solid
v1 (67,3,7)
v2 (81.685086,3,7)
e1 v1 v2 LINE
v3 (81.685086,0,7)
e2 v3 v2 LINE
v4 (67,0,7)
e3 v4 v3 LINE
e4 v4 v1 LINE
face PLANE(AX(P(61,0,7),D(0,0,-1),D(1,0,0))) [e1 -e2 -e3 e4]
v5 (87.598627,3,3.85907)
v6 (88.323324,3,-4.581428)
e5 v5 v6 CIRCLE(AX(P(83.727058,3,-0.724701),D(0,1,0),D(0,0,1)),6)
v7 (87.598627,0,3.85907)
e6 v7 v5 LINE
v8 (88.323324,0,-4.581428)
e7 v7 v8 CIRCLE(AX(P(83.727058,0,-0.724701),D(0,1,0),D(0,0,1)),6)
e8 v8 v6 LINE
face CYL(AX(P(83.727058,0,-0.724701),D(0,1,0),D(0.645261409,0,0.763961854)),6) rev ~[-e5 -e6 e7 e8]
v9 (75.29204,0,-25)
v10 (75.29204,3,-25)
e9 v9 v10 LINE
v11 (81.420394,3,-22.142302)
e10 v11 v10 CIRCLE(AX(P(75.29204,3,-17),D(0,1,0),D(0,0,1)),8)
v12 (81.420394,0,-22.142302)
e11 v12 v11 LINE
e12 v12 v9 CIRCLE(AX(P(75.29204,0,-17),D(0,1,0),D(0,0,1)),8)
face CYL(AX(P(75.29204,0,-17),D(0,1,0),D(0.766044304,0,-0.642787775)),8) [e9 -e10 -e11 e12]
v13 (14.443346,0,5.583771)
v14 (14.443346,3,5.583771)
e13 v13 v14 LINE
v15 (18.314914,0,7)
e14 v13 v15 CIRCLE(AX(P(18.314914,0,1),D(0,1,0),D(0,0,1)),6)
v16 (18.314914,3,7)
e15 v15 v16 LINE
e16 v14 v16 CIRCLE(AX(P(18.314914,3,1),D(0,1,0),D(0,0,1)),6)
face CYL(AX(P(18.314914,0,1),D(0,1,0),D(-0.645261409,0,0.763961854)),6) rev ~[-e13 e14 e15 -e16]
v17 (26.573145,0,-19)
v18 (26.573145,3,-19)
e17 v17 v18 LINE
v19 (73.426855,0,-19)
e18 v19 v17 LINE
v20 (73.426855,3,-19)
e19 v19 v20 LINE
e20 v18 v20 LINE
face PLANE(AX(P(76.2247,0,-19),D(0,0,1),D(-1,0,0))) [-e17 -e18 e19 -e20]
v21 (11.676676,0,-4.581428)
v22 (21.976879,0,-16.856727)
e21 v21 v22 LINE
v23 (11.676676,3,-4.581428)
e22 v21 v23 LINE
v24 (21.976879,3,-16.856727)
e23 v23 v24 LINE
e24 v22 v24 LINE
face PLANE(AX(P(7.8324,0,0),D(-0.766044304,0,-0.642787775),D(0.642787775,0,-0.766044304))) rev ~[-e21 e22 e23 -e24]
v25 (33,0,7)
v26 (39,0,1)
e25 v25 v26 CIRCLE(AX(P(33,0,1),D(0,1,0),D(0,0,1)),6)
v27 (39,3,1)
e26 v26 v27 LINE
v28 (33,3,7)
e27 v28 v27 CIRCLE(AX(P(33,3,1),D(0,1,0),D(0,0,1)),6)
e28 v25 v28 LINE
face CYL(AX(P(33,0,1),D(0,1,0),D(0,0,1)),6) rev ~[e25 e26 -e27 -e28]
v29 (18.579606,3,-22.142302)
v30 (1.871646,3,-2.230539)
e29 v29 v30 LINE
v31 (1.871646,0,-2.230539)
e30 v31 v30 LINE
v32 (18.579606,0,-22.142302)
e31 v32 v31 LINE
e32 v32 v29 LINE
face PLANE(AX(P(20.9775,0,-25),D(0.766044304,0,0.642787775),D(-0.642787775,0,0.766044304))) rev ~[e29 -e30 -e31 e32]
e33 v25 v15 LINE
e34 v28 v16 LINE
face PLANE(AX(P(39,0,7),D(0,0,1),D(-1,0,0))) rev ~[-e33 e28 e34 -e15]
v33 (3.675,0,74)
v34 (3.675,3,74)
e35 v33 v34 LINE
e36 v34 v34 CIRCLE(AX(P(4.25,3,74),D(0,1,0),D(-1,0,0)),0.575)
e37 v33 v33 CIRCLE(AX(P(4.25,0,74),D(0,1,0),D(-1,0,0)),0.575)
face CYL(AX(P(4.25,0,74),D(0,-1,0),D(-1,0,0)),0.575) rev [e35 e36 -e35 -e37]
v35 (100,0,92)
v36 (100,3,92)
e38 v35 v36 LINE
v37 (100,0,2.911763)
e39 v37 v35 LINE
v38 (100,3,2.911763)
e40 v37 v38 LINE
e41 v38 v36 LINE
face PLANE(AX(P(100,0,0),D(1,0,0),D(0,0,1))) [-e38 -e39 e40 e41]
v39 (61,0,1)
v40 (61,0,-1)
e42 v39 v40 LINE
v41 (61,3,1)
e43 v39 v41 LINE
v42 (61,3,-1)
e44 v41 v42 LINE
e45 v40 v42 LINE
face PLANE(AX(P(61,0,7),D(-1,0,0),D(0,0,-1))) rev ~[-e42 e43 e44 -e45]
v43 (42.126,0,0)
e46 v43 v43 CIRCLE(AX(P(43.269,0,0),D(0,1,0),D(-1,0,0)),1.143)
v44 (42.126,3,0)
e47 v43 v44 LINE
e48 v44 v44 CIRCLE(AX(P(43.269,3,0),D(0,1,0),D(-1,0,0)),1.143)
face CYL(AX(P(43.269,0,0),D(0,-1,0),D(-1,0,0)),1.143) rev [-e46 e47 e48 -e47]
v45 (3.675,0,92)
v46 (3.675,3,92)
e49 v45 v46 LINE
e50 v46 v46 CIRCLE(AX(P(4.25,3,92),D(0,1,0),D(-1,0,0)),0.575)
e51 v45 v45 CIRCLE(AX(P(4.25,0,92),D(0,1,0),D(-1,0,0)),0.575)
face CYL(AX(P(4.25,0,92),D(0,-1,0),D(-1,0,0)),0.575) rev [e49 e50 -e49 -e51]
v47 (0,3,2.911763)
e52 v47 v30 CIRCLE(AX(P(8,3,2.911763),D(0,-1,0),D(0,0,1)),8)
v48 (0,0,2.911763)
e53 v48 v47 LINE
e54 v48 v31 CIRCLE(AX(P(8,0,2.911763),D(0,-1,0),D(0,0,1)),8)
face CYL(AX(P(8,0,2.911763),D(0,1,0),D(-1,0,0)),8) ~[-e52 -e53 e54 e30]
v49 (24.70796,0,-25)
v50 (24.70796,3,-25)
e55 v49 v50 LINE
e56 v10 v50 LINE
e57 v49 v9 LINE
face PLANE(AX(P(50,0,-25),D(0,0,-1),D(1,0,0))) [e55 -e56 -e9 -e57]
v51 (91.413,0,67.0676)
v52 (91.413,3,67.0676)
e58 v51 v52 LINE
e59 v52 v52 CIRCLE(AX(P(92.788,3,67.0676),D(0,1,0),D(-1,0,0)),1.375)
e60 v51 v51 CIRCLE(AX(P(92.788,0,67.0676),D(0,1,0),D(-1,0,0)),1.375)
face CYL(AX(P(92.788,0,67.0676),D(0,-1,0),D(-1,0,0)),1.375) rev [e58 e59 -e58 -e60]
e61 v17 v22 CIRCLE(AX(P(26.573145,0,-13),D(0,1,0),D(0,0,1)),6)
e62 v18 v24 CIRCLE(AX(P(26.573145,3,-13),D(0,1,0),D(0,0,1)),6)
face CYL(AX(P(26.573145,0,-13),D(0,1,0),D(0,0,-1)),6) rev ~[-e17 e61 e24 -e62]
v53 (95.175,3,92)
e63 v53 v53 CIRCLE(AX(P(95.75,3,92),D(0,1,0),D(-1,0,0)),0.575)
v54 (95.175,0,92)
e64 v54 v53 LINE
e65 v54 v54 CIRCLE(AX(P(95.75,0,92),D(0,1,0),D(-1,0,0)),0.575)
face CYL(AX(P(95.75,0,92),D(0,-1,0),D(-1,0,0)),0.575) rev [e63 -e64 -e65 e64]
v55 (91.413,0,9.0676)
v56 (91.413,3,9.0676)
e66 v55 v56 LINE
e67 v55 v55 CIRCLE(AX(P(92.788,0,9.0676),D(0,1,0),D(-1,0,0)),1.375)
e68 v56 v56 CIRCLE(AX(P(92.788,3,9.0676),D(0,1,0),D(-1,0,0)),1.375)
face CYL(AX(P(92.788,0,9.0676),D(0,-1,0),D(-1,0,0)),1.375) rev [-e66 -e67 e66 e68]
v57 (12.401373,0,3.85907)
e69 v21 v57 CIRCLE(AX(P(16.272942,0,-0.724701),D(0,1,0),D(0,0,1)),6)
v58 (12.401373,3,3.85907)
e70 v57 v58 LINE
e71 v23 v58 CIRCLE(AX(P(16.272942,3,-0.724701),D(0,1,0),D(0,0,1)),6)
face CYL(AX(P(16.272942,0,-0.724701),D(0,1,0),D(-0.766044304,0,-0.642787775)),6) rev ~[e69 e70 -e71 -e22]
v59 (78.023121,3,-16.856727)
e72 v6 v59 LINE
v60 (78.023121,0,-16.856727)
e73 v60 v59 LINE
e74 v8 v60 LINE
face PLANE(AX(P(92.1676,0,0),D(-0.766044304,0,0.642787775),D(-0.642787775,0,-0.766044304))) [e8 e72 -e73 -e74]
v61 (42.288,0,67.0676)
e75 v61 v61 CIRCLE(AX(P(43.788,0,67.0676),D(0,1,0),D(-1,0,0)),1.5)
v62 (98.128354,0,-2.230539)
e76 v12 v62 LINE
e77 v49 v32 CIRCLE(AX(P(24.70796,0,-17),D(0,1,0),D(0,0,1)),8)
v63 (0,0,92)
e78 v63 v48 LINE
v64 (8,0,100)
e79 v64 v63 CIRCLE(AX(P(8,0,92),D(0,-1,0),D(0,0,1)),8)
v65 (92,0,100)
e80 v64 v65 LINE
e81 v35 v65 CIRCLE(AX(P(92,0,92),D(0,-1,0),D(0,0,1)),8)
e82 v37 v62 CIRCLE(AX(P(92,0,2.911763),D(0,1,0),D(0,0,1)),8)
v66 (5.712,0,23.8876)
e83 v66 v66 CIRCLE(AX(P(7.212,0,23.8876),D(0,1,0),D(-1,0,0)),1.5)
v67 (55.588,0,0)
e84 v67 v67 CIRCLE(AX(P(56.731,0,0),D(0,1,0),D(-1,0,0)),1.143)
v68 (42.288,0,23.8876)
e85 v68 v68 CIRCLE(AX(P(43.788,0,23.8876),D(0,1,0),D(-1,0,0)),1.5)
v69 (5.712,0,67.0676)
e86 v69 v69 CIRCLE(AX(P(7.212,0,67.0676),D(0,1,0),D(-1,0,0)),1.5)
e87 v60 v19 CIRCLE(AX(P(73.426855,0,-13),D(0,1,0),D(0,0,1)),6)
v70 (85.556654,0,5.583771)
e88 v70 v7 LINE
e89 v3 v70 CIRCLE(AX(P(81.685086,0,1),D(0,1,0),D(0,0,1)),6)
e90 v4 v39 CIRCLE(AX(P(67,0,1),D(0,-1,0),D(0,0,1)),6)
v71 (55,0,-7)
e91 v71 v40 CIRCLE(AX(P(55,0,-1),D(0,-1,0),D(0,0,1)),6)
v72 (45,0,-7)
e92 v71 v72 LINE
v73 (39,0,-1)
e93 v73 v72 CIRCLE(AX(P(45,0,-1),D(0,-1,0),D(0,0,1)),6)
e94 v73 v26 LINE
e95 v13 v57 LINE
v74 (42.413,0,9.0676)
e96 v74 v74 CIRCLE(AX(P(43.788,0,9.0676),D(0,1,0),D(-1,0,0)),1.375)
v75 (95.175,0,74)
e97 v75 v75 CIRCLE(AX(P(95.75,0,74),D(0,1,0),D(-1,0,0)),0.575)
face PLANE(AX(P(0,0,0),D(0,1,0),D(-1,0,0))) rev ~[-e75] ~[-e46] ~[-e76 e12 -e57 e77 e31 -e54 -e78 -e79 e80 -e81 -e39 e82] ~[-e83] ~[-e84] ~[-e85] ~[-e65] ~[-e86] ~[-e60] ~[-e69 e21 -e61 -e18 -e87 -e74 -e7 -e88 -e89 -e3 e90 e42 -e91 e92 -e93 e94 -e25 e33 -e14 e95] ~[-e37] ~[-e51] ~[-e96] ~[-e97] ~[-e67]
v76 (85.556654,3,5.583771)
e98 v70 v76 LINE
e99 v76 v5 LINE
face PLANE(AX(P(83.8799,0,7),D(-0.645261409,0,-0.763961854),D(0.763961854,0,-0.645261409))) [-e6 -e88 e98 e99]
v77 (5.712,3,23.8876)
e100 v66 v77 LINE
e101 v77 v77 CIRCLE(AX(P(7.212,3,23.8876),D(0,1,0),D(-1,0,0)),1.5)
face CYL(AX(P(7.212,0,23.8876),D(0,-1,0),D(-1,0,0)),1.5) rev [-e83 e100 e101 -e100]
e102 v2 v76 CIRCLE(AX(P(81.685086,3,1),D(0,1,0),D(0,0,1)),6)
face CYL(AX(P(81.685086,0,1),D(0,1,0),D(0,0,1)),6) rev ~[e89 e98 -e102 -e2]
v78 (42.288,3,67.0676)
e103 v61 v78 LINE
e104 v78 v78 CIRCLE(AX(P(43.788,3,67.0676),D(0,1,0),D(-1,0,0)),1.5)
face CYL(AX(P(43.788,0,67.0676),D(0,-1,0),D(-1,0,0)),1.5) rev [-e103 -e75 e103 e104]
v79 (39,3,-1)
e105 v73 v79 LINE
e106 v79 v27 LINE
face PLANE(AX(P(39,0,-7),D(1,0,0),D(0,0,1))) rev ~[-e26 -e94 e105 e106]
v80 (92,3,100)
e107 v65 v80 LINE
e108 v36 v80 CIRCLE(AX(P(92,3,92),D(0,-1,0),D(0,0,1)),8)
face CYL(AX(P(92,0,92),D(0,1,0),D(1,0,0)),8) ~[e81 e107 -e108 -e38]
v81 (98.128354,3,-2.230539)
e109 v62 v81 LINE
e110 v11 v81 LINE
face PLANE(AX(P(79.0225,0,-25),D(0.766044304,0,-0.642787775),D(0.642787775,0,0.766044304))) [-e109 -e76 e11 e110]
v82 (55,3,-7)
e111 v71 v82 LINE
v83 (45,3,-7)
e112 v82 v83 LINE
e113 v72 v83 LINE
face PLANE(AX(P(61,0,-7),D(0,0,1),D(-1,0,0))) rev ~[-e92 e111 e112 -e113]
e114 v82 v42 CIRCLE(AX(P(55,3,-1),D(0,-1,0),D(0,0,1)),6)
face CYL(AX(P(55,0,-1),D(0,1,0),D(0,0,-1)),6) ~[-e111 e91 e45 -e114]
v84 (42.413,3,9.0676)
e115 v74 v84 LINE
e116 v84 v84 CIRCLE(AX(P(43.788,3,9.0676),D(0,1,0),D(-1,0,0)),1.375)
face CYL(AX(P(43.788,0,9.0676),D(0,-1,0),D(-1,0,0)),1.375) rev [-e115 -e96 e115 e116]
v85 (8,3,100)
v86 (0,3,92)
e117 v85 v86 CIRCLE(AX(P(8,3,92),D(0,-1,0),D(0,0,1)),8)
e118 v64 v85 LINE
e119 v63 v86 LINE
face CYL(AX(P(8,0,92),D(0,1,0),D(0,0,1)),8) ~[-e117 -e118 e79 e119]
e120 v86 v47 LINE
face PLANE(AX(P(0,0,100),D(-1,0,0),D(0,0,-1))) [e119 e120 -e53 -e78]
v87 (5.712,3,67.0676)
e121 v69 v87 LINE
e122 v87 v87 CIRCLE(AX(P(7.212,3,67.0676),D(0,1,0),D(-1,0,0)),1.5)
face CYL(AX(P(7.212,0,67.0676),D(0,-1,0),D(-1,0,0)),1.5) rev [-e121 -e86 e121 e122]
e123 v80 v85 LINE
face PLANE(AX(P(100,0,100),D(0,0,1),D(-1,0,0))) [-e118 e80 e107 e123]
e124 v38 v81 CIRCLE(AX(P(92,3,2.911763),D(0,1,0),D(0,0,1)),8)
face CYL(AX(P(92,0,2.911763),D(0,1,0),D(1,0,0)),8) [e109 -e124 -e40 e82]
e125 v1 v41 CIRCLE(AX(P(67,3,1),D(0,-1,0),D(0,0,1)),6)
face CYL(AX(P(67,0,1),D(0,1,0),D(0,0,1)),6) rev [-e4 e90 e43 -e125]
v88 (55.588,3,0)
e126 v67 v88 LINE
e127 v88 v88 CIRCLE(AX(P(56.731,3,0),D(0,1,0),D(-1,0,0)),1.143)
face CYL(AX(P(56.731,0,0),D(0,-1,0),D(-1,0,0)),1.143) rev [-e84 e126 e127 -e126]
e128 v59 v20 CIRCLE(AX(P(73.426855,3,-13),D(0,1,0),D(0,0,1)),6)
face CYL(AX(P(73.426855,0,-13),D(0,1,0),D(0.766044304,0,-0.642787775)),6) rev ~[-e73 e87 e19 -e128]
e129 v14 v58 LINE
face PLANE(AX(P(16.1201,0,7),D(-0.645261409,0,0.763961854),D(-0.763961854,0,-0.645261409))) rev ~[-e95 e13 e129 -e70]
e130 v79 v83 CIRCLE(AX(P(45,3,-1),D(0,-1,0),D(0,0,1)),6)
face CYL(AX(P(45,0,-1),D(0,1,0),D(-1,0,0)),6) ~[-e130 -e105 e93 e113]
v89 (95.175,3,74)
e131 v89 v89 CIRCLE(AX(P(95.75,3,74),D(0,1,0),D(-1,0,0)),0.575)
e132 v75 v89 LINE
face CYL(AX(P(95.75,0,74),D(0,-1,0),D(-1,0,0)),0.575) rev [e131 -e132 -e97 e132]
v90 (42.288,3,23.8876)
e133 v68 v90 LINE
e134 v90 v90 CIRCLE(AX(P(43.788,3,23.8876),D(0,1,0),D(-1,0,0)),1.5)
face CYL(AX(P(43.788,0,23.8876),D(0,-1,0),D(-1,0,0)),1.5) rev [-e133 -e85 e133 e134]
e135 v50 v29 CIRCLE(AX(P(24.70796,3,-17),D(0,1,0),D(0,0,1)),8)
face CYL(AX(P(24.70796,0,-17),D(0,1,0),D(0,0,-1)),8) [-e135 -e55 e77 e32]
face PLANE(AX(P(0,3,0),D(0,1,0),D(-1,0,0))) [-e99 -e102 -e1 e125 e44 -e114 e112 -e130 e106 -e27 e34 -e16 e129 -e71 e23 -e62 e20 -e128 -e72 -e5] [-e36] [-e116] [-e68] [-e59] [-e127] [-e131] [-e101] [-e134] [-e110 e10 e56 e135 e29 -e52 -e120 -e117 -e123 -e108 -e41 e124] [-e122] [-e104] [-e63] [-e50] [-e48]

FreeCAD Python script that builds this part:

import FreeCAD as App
import Part
import Sketcher

V = App.Vector
Q = App.Units.Quantity


def edges_at(feature, points):
    """Names of the edges that pass closest to the given points."""
    edges = feature.Shape.Edges
    near = lambda p: min(range(len(edges)), key=lambda i: edges[i].distToShape(Part.Vertex(*p))[0])
    return sorted({f"Edge{near(p) + 1}" for p in points})

doc = App.newDocument("Part")
params = doc.addObject("Spreadsheet::Sheet", "Params")
for row, (alias, value) in enumerate([
    ("sketch1_diameter", "3 mm"),
    ("sketch1_diameter2", "2.75 mm"),
    ("sketch1_diameter3", "1.15 mm"),
    ("sketch1_width", "100 mm"),
    ("sketch1_width2", "22 mm"),
    ("pad1_length", "3 mm"),
    ("fillet_radius", "6 mm"),
    ("fillet2_radius", "8 mm"),
], start=1):
    params.set(f"A{row}", alias)
    params.set(f"B{row}", "=" + value)
    params.setAlias(f"B{row}", alias)

body = doc.addObject("PartDesign::Body", "Body")

sketch1 = body.newObject("Sketcher::SketchObject", "Sketch")
sketch1.AttachmentSupport = (doc.getObject("XZ_Plane"), [""])
sketch1.MapMode = "FlatFace"
sketch1.addGeometry([
    Part.LineSegment(V(100, 100, 0), V(100, 0, 0)),
    Part.LineSegment(V(100, 0, 0), V(79.0225, -25, 0)),
    Part.LineSegment(V(79.0225, -25, 0), V(20.9775, -25, 0)),
    Part.LineSegment(V(20.9775, -25, 0), V(0, 0, 0)),
    Part.LineSegment(V(0, 0, 0), V(0, 100, 0)),
    Part.LineSegment(V(0, 100, 0), V(100, 100, 0)),
    Part.Circle(V(92.788, 9.0676, 0), V(0, 0, 1), 1.375),
    Part.LineSegment(V(83.8799, 7, 0), V(61, 7, 0)),
    Part.LineSegment(V(61, 7, 0), V(61, -7, 0)),
    Part.LineSegment(V(61, -7, 0), V(39, -7, 0)),
    Part.LineSegment(V(39, -7, 0), V(39, 7, 0)),
    Part.LineSegment(V(39, 7, 0), V(16.1201, 7, 0)),
    Part.LineSegment(V(16.1201, 7, 0), V(7.8324, 0, 0)),
    Part.LineSegment(V(7.8324, 0, 0), V(23.7753, -19, 0)),
    Part.LineSegment(V(23.7753, -19, 0), V(76.2247, -19, 0)),
    Part.LineSegment(V(76.2247, -19, 0), V(92.1676, 0, 0)),
    Part.LineSegment(V(92.1676, 0, 0), V(83.8799, 7, 0)),
    Part.Circle(V(43.788, 9.0676, 0), V(0, 0, 1), 1.375),
    Part.Circle(V(43.788, 23.8876, 0), V(0, 0, 1), 1.5),
    Part.Circle(V(7.212, 23.8876, 0), V(0, 0, 1), 1.5),
    Part.Circle(V(92.788, 67.0676, 0), V(0, 0, 1), 1.375),
    Part.Circle(V(95.75, 74, 0), V(0, 0, 1), 0.575),
    Part.Circle(V(95.75, 92, 0), V(0, 0, 1), 0.575),
    Part.Circle(V(43.788, 67.0676, 0), V(0, 0, 1), 1.5),
    Part.Circle(V(7.212, 67.0676, 0), V(0, 0, 1), 1.5),
    Part.Circle(V(4.25, 74, 0), V(0, 0, 1), 0.575),
    Part.Circle(V(4.25, 92, 0), V(0, 0, 1), 0.575),
    Part.Circle(V(43.269, 0, 0), V(0, 0, 1), 1.143),
    Part.Circle(V(56.731, 0, 0), V(0, 0, 1), 1.143),
], False)
sketch1.addConstraint([
    Sketcher.Constraint("Coincident", 0, 2, 1, 1),
    Sketcher.Constraint("Coincident", 1, 2, 2, 1),
    Sketcher.Constraint("Coincident", 2, 2, 3, 1),
    Sketcher.Constraint("Coincident", 3, 2, 4, 1),
    Sketcher.Constraint("Coincident", 4, 2, 5, 1),
    Sketcher.Constraint("Coincident", 5, 2, 0, 1),
    Sketcher.Constraint("Coincident", 7, 2, 8, 1),
    Sketcher.Constraint("Coincident", 8, 2, 9, 1),
    Sketcher.Constraint("Coincident", 9, 2, 10, 1),
    Sketcher.Constraint("Coincident", 10, 2, 11, 1),
    Sketcher.Constraint("Coincident", 11, 2, 12, 1),
    Sketcher.Constraint("Coincident", 12, 2, 13, 1),
    Sketcher.Constraint("Coincident", 13, 2, 14, 1),
    Sketcher.Constraint("Coincident", 14, 2, 15, 1),
    Sketcher.Constraint("Coincident", 15, 2, 16, 1),
    Sketcher.Constraint("Coincident", 16, 2, 7, 1),
    Sketcher.Constraint("Vertical", 0),
    Sketcher.Constraint("Horizontal", 2),
    Sketcher.Constraint("Vertical", 4),
    Sketcher.Constraint("Horizontal", 5),
    Sketcher.Constraint("Horizontal", 7),
    Sketcher.Constraint("Vertical", 8),
    Sketcher.Constraint("Horizontal", 9),
    Sketcher.Constraint("Vertical", 10),
    Sketcher.Constraint("Horizontal", 11),
    Sketcher.Constraint("Horizontal", 14),
    Sketcher.Constraint("Coincident", 3, 2, -1, 1),
    Sketcher.Constraint("Equal", 6, 17),
    Sketcher.Constraint("Equal", 18, 19),
    Sketcher.Constraint("Equal", 17, 20),
    Sketcher.Constraint("Equal", 21, 22),
    Sketcher.Constraint("Equal", 19, 23),
    Sketcher.Constraint("Equal", 23, 24),
    Sketcher.Constraint("Equal", 22, 25),
    Sketcher.Constraint("Equal", 25, 26),
    Sketcher.Constraint("Equal", 27, 28),
    Sketcher.Constraint("PointOnObject", 27, 3, -1),
    Sketcher.Constraint("PointOnObject", 28, 3, -1),
    Sketcher.Constraint("PointOnObject", 0, 2, -1),
    Sketcher.Constraint("PointOnObject", 12, 2, -1),
    Sketcher.Constraint("PointOnObject", 15, 2, -1),
    Sketcher.Constraint("Parallel", 3, 13),
    Sketcher.Constraint("Parallel", 1, 15),
    Sketcher.Constraint("Horizontal", 6, 3, 17, 3),
    Sketcher.Constraint("Horizontal", 18, 3, 19, 3),
    Sketcher.Constraint("Horizontal", 20, 3, 23, 3),
    Sketcher.Constraint("Horizontal", 23, 3, 24, 3),
    Sketcher.Constraint("Horizontal", 21, 3, 25, 3),
    Sketcher.Constraint("Horizontal", 22, 3, 26, 3),
    Sketcher.Constraint("Horizontal", 7, 2, 10, 2),
    Sketcher.Constraint("Vertical", 17, 3, 18, 3),
    Sketcher.Constraint("Vertical", 6, 3, 20, 3),
    Sketcher.Constraint("Vertical", 21, 3, 22, 3),
    Sketcher.Constraint("Vertical", 18, 3, 23, 3),
    Sketcher.Constraint("Vertical", 19, 3, 24, 3),
    Sketcher.Constraint("Vertical", 25, 3, 26, 3),
    Sketcher.Constraint("Equal", 7, 11),
    Sketcher.Constraint("Equal", 5, 0),
    Sketcher.Constraint("Equal", 1, 3),
    Sketcher.Constraint("Equal", 12, 16),
    Sketcher.Constraint("Diameter", 18, Q("3 mm")),
    Sketcher.Constraint("Diameter", 6, Q("2.75 mm")),
    Sketcher.Constraint("Diameter", 21, Q("1.15 mm")),
    Sketcher.Constraint("DistanceX", 5, 1, 5, 2, Q("100 mm")),
    Sketcher.Constraint("DistanceX", 9, 2, 9, 1, Q("22 mm")),
    Sketcher.Constraint("DistanceY", 8, 2, 8, 1, Q("14 mm")),
    Sketcher.Constraint("Angle", 1, Q("-130 deg")),
    Sketcher.Constraint("Diameter", 27, Q("2.286 mm")),
    Sketcher.Constraint("DistanceY", 1, 2, -1, 1, Q("25 mm")),
    Sketcher.Constraint("DistanceX", 17, 3, 6, 3, Q("49 mm")),
    Sketcher.Constraint("DistanceY", 6, 3, 20, 3, Q("58 mm")),
    Sketcher.Constraint("DistanceY", 21, 3, 22, 3, Q("18 mm")),
    Sketcher.Constraint("DistanceY", 26, 3, 4, 2, Q("8 mm")),
    Sketcher.Constraint("DistanceY", 1, 2, 8, 2, Q("18 mm")),
    Sketcher.Constraint("DistanceY", 2, 2, 13, 2, Q("6 mm")),
    Sketcher.Constraint("DistanceX", -1, 1, 25, 3, Q("4.25 mm")),
    Sketcher.Constraint("DistanceY", 18, 3, 20, 3, Q("43.18 mm")),
    Sketcher.Constraint("DistanceX", 22, 3, 5, 2, Q("4.25 mm")),
    Sketcher.Constraint("DistanceX", -1, 1, 7, 2, Q("61 mm")),
    Sketcher.Constraint("DistanceX", 19, 3, 18, 3, Q("36.576 mm")),
    Sketcher.Constraint("DistanceX", 27, 3, 28, 3, Q("13.462 mm")),
    Sketcher.Constraint("DistanceX", 7, 2, 7, 1, Q("22.88 mm")),
    Sketcher.Constraint("DistanceX", 14, 1, 14, 2, Q("52.4494 mm")),
    Sketcher.Constraint("DistanceX", -1, 1, 6, 3, Q("92.788 mm")),
    Sketcher.Constraint("DistanceX", -1, 1, 27, 3, Q("43.269 mm")),
    Sketcher.Constraint("DistanceY", -1, 1, 6, 3, Q("9.0676 mm")),
])
sketch1.setExpression("Constraints[60]", "Params.sketch1_diameter")
sketch1.setExpression("Constraints[61]", "Params.sketch1_diameter2")
sketch1.setExpression("Constraints[62]", "Params.sketch1_diameter3")
sketch1.setExpression("Constraints[63]", "Params.sketch1_width")
sketch1.setExpression("Constraints[64]", "Params.sketch1_width2")
pad1 = body.newObject("PartDesign::Pad", "Pad")
pad1.Profile = sketch1
pad1.setExpression("Length", "Params.pad1_length")
pad1.Reversed = True
doc.recompute()

fillet = body.newObject("PartDesign::Fillet", "Fillet")
fillet.Base = (pad1, edges_at(pad1, [
    (61, 1.5, 7),
    (39, 1.5, 7),
    (39, 1.5, -7),
    (61, 1.5, -7),
    (7.832, 1.5, 0),
    (92.168, 1.5, 0),
    (83.88, 1.5, 7),
    (16.12, 1.5, 7),
    (23.775, 1.5, -19),
    (76.225, 1.5, -19),
]))
fillet.setExpression("Radius", "Params.fillet_radius")
doc.recompute()

fillet2 = body.newObject("PartDesign::Fillet", "Fillet001")
fillet2.Base = (fillet, edges_at(fillet, [
    (20.977, 1.5, -25),
    (0, 1.5, 0),
    (79.022, 1.5, -25),
    (100, 1.5, 0),
    (100, 1.5, 100),
    (0, 1.5, 100),
]))
fillet2.setExpression("Radius", "Params.fillet2_radius")

doc.recompute()
